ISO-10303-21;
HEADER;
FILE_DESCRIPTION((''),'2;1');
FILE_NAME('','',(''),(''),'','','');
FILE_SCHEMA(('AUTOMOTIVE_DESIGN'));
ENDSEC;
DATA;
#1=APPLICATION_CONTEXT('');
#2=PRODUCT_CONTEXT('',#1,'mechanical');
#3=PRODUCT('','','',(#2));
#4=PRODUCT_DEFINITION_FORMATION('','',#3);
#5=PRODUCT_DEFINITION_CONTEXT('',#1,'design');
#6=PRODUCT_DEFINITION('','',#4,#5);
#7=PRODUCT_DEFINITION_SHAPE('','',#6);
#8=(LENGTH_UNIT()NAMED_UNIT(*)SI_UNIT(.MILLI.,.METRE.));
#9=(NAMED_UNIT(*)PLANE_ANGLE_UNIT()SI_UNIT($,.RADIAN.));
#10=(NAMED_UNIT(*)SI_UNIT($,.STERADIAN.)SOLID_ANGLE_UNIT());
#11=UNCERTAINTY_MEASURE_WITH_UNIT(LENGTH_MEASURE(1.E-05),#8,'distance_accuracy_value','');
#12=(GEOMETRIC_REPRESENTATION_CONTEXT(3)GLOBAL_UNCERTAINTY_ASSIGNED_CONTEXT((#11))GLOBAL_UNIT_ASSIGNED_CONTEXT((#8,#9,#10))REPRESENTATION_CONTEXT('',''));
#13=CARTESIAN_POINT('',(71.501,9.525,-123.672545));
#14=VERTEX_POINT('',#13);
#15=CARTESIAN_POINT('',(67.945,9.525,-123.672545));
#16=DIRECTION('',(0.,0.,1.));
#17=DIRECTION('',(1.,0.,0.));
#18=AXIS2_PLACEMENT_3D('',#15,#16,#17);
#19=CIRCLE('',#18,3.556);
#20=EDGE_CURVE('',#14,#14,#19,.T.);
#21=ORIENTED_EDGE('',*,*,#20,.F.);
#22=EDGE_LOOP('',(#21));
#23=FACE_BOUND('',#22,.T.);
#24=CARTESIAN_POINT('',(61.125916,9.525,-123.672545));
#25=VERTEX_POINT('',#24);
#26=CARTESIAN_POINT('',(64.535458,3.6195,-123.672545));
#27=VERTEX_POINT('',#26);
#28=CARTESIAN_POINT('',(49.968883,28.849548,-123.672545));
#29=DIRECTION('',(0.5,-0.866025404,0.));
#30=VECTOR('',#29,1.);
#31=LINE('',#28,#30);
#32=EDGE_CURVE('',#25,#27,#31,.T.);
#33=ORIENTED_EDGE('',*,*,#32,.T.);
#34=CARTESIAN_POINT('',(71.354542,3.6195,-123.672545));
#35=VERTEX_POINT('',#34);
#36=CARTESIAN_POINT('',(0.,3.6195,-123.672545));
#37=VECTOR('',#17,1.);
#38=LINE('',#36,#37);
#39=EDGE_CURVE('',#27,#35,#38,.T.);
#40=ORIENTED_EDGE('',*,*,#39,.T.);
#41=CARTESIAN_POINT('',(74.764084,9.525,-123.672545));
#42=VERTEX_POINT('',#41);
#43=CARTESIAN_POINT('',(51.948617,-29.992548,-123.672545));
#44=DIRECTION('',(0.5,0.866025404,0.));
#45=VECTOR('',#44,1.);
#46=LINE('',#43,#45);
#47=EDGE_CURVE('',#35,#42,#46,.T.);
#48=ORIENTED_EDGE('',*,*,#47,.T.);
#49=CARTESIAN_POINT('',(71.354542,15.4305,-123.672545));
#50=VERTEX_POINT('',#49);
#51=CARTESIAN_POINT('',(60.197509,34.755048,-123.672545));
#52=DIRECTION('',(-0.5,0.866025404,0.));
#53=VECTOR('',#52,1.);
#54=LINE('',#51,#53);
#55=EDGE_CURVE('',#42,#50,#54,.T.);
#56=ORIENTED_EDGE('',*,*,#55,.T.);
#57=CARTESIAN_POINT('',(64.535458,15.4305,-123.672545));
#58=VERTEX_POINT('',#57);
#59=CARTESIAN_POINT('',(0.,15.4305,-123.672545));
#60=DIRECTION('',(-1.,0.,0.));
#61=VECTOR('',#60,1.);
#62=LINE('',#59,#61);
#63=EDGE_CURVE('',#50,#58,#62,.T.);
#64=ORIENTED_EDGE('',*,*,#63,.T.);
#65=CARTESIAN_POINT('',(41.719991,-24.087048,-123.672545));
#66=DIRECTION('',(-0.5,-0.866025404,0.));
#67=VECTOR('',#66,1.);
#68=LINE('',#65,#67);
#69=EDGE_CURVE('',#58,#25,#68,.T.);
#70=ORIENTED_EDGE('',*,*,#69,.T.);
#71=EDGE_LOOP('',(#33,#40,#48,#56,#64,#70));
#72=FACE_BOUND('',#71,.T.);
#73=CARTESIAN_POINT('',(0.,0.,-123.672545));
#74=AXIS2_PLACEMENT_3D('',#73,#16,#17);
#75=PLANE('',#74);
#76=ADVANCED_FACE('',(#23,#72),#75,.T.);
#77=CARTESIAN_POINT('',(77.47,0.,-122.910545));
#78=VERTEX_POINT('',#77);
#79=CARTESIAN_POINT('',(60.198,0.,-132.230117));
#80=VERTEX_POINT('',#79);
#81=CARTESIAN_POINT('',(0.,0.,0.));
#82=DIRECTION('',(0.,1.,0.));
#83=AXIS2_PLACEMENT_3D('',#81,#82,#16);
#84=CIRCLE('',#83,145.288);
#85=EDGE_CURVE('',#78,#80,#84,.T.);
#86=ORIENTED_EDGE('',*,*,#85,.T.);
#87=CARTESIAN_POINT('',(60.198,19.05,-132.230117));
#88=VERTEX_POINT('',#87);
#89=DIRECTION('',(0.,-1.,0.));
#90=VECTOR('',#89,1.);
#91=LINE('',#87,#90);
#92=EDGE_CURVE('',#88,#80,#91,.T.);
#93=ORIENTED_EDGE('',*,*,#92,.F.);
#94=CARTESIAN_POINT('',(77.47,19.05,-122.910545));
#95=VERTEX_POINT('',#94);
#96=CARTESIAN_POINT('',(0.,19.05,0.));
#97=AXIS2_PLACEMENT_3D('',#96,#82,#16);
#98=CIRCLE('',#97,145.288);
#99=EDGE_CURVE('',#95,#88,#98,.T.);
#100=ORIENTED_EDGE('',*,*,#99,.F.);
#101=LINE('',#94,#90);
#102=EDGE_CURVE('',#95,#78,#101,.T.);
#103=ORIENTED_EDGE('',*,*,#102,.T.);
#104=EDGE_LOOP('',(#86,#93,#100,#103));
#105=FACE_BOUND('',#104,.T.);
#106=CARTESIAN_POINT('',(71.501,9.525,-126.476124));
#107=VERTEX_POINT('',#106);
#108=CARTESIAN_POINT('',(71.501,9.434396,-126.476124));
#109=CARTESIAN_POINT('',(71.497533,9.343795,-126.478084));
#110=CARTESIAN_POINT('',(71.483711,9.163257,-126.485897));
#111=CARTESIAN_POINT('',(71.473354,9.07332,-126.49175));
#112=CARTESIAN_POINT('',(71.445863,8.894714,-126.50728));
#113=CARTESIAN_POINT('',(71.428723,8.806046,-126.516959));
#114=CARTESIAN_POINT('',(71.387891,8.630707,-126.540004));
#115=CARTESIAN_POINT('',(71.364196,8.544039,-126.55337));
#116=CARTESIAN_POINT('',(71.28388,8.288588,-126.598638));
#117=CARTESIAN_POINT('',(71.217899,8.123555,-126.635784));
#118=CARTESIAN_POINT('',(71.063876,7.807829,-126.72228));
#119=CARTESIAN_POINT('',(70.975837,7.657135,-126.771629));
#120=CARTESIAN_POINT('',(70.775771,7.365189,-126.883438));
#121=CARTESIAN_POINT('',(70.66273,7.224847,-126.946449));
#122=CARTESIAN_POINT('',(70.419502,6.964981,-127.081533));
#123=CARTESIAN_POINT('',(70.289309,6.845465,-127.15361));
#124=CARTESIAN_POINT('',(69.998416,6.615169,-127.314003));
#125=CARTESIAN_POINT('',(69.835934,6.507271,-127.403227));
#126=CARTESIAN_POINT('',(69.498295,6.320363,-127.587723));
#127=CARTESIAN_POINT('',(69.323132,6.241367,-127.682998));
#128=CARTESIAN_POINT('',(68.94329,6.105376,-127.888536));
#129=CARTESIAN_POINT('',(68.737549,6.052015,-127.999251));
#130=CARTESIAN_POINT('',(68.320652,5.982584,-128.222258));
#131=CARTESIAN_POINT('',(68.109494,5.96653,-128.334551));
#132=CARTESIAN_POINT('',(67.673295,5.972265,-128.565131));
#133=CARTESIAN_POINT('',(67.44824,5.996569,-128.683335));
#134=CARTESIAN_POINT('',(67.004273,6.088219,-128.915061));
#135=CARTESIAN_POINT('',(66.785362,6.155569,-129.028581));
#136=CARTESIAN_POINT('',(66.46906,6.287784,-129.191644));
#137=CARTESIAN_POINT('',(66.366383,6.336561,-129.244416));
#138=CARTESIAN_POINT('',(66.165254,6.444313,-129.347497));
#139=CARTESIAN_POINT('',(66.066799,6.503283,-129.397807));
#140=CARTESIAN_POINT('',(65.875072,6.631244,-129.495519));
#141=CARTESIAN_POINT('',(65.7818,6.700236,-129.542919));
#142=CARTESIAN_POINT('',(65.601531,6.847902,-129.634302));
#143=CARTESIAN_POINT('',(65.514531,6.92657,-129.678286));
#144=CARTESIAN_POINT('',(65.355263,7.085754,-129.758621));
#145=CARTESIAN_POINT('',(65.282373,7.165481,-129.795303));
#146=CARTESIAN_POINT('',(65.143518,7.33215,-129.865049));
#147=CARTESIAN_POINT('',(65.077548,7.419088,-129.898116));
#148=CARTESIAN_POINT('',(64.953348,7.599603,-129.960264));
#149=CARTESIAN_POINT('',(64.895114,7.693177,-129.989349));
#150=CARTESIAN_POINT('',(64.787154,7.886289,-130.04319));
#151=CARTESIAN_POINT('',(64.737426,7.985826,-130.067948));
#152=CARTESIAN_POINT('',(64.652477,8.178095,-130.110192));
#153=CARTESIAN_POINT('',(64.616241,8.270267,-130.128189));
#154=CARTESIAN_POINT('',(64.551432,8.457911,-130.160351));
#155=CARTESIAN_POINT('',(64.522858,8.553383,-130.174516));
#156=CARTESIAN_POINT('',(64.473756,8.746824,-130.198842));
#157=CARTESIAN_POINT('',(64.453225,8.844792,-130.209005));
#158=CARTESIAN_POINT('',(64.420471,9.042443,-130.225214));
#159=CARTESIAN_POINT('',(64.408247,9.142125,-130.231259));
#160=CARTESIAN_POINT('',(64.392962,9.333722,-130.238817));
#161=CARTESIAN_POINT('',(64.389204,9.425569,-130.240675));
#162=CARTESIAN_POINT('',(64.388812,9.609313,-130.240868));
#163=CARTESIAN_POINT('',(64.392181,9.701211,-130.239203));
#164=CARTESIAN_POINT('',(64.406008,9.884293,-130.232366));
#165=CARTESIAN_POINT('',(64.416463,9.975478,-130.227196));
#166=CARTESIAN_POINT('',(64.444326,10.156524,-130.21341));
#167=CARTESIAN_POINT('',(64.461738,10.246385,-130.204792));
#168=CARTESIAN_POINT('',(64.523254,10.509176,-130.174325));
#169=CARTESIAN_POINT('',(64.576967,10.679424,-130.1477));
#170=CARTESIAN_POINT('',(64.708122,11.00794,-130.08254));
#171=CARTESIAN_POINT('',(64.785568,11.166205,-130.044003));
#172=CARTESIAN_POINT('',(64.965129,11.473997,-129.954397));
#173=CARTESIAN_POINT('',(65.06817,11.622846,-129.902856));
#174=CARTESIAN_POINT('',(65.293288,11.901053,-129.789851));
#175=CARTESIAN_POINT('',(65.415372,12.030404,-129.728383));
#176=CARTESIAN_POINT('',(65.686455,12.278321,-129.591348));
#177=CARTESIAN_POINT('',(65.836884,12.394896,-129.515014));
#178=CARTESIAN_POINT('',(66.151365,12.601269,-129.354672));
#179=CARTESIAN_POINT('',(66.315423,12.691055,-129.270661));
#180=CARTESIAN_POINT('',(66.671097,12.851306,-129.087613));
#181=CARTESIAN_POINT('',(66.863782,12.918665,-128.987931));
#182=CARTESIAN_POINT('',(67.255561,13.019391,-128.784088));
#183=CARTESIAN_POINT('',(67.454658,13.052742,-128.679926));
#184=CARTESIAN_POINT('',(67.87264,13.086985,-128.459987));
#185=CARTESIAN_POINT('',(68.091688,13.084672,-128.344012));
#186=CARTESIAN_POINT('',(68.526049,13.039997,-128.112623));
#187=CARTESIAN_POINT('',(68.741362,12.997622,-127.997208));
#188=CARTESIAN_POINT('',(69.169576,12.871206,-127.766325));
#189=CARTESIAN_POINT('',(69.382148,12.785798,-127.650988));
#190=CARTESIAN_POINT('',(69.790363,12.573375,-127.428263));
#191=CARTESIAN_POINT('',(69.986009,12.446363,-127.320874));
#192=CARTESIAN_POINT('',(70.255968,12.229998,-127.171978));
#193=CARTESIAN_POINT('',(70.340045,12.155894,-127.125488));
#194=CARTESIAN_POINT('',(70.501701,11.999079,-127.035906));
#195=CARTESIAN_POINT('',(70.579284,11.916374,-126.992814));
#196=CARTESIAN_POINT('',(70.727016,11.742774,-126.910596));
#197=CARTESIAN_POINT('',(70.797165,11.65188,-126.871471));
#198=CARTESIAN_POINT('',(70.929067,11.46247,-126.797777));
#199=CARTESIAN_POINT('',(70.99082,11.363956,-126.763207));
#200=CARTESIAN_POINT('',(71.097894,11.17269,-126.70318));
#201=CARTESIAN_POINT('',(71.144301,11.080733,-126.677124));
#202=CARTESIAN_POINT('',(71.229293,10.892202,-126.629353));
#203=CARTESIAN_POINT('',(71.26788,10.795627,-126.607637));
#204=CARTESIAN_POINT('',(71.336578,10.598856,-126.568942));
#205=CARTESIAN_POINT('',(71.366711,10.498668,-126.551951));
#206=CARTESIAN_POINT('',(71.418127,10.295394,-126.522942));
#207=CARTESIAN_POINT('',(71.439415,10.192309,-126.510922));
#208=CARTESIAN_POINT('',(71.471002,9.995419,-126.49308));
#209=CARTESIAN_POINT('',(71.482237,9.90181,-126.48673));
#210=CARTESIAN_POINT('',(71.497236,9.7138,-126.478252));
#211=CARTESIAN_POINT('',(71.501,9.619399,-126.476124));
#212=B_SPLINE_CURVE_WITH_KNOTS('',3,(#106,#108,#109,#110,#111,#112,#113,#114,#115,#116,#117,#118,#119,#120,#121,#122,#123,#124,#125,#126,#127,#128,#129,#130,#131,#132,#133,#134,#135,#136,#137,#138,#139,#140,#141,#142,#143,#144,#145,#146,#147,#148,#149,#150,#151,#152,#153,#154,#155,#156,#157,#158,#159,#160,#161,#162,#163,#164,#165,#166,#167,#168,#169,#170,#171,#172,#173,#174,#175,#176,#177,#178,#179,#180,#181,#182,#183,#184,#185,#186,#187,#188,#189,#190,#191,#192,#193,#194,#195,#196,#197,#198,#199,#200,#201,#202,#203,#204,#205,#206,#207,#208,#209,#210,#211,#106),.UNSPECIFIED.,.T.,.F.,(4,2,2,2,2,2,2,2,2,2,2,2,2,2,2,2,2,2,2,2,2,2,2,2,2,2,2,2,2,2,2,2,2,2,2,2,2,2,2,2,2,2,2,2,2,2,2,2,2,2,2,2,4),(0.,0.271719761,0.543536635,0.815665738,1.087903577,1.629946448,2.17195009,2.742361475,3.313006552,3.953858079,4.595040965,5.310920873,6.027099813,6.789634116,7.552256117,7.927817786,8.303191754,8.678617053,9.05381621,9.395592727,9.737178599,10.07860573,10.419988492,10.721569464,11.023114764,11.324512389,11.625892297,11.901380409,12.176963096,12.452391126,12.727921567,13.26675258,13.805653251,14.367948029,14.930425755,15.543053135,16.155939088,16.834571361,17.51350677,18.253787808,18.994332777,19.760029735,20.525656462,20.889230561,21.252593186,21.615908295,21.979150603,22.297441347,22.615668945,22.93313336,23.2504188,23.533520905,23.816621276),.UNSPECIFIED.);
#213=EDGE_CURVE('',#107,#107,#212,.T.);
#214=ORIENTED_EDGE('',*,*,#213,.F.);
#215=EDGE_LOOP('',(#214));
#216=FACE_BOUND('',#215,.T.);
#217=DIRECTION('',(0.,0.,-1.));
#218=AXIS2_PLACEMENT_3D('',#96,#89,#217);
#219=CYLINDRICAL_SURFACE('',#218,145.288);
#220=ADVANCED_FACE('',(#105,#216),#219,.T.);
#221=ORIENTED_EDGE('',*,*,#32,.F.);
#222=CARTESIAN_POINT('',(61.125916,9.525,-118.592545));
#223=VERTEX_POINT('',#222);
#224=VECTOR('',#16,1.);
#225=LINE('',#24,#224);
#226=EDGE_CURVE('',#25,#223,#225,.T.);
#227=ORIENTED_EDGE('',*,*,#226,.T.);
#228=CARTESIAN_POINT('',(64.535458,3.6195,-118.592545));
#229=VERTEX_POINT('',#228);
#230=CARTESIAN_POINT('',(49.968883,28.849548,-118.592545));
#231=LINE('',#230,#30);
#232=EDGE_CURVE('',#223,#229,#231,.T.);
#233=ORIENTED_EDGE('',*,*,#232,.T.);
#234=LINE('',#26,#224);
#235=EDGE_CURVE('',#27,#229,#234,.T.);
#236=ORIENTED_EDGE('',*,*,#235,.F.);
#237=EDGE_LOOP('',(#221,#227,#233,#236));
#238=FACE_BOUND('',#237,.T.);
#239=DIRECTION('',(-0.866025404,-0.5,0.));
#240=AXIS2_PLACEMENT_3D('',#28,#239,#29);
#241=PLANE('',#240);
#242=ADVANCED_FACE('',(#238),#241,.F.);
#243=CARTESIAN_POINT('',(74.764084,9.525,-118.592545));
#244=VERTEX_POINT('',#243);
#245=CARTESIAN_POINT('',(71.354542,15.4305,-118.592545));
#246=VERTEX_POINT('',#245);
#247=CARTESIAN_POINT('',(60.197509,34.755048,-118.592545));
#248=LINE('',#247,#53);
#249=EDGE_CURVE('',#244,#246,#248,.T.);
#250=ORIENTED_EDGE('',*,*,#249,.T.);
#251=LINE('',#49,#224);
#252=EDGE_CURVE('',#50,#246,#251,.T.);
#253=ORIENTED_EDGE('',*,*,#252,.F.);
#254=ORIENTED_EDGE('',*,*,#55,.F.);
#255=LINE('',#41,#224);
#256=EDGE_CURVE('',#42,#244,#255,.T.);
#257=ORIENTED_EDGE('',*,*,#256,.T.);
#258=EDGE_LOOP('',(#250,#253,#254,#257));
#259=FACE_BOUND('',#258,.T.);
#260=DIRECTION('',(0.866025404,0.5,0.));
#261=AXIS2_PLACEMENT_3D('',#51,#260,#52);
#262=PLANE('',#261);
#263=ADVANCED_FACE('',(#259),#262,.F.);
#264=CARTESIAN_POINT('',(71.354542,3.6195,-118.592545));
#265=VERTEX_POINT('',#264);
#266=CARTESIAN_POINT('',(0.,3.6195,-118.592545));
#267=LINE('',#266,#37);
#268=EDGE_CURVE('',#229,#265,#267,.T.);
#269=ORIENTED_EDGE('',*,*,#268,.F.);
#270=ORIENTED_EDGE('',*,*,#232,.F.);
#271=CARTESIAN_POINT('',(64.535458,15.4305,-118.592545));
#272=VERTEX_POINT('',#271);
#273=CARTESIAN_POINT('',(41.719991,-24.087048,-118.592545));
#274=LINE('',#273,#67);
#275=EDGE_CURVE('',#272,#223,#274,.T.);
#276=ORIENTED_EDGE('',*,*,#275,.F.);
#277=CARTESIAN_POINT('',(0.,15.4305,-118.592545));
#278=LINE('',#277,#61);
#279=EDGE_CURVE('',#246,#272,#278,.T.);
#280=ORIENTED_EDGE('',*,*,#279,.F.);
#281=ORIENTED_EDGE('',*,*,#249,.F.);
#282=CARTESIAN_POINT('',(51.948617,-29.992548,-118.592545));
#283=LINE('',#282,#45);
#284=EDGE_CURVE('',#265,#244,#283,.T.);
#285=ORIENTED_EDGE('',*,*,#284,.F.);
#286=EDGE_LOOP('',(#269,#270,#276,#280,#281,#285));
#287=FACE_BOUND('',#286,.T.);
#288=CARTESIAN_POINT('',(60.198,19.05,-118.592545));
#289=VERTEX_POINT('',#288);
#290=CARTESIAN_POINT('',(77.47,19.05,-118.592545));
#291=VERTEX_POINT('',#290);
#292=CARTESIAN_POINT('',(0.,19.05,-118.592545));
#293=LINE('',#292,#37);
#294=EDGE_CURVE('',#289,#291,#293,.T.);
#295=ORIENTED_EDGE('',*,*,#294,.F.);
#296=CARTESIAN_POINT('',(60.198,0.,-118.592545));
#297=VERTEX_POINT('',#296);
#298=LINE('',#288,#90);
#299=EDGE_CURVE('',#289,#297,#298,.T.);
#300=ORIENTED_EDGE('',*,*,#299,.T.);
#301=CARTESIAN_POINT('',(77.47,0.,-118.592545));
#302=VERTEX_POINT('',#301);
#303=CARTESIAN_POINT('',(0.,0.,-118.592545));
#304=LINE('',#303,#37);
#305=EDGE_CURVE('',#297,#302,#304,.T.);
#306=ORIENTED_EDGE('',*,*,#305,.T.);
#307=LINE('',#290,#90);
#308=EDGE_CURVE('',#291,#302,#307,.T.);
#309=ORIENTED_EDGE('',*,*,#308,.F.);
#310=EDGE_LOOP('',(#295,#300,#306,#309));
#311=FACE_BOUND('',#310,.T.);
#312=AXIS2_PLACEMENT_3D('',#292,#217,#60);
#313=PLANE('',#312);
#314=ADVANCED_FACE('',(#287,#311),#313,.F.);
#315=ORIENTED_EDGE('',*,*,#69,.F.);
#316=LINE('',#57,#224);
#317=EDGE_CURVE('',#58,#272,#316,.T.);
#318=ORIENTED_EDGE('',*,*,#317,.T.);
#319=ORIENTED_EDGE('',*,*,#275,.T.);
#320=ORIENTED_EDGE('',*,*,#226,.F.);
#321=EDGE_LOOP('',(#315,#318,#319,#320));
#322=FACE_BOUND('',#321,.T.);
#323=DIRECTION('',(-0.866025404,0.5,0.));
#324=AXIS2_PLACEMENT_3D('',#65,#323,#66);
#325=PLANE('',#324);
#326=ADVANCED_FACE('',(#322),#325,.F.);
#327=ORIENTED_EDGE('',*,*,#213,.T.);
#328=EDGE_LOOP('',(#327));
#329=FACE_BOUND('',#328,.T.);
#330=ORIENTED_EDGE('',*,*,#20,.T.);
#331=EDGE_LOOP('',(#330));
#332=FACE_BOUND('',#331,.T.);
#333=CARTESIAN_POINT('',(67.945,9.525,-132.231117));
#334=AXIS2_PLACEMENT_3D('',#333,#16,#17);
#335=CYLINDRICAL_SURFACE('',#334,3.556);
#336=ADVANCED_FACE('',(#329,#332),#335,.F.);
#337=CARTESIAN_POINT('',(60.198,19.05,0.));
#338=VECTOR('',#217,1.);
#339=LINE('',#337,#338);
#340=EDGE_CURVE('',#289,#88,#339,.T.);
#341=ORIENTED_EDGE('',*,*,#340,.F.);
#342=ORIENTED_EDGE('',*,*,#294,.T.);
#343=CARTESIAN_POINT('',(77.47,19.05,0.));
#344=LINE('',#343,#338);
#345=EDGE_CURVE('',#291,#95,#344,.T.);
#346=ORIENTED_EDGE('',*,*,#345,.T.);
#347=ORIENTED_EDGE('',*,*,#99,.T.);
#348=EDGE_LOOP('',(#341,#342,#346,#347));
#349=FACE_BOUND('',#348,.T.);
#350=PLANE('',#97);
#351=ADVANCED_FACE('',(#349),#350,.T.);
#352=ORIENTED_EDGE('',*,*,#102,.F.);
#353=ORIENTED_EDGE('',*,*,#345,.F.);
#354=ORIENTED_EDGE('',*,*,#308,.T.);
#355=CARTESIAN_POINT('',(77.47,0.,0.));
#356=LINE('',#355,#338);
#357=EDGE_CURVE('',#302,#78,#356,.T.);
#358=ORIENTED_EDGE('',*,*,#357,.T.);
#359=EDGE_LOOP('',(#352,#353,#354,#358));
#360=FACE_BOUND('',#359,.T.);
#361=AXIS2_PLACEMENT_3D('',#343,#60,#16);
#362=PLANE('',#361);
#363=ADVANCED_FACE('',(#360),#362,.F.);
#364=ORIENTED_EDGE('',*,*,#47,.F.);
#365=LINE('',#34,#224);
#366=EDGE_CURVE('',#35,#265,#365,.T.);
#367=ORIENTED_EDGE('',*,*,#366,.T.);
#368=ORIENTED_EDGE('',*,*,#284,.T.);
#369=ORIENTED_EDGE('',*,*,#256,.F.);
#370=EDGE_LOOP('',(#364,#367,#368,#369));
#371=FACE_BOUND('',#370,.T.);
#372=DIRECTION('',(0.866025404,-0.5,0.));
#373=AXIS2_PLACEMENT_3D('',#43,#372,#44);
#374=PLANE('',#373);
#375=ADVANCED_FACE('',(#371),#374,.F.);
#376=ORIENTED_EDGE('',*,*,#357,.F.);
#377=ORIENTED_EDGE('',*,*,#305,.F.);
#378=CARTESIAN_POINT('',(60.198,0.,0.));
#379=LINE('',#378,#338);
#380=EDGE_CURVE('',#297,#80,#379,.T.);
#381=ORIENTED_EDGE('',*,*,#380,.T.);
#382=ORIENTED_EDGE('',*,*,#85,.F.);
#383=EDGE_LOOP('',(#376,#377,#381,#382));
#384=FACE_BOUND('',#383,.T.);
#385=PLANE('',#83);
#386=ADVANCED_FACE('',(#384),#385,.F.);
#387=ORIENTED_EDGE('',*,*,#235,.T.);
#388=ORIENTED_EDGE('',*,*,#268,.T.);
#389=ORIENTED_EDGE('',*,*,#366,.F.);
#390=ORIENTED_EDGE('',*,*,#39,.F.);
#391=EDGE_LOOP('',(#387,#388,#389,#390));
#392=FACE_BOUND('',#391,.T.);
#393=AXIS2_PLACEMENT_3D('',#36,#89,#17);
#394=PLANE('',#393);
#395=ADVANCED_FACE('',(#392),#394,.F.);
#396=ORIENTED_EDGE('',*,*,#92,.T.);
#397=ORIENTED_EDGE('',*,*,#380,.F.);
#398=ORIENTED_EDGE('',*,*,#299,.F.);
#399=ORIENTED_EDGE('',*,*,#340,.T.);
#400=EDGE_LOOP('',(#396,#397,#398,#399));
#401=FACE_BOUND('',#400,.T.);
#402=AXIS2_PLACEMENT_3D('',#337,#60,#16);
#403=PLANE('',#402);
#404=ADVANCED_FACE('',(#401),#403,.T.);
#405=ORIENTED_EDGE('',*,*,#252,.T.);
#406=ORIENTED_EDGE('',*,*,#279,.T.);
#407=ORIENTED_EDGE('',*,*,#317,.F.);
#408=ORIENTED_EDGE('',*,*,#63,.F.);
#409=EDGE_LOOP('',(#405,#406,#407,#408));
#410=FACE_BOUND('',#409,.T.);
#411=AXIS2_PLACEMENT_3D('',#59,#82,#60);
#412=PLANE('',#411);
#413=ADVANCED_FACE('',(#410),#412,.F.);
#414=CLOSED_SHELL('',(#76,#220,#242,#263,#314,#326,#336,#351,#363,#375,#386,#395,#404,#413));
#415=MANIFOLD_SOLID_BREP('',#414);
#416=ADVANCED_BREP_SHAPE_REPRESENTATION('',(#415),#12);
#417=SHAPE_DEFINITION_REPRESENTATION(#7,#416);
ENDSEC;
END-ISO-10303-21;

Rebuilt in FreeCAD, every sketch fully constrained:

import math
import FreeCAD as App
import Part
import Sketcher
from FreeCAD import Vector
Q = App.Units.Quantity

doc = App.newDocument("Part")
body = doc.addObject("PartDesign::Body", "Body")

sketch1 = body.newObject("Sketcher::SketchObject", "Sketch")
sketch1.AttachmentSupport = (doc.getObject("XZ_Plane"), [""])
sketch1.MapMode = "FlatFace"
sketch1.addGeometry([
    Part.ArcOfCircle(Part.Circle(Vector(0, 0, 0), Vector(0, 0, 1), 145.3), math.radians(-65.52), math.radians(-57.78)),
    Part.LineSegment(Vector(60.2, -132.2, 0), Vector(60.2, -118.6, 0)),
    Part.LineSegment(Vector(60.2, -118.6, 0), Vector(77.5, -118.6, 0)),
    Part.LineSegment(Vector(77.5, -118.6, 0), Vector(77.5, -122.9, 0)),
], False)
sketch1.addConstraint([
    Sketcher.Constraint("Coincident", 0, 1, 1, 1),
    Sketcher.Constraint("Coincident", 1, 2, 2, 1),
    Sketcher.Constraint("Coincident", 2, 2, 3, 1),
    Sketcher.Constraint("Coincident", 3, 2, 0, 2),
    Sketcher.Constraint("Vertical", 1),
    Sketcher.Constraint("Horizontal", 2),
    Sketcher.Constraint("Vertical", 3),
    Sketcher.Constraint("Coincident", 0, 3, -1, 1),
    Sketcher.Constraint("Radius", 0, Q("5.72 in")),
    Sketcher.Constraint("DistanceX", 2, 1, 2, 2, Q("0.68 in")),
    Sketcher.Constraint("DistanceY", 3, 2, 3, 1, Q("0.17 in")),
    Sketcher.Constraint("DistanceX", -1, 1, 0, 1, Q("2.37 in")),
])
pad1 = body.newObject("PartDesign::Pad", "Pad")
pad1.Profile = sketch1
pad1.Length = Q("0.75 in")
pad1.Reversed = True

sketch2 = body.newObject("Sketcher::SketchObject", "Sketch001")
sketch2.AttachmentSupport = (doc.getObject("XY_Plane"), [""])
sketch2.MapMode = "FlatFace"
sketch2.AttachmentOffset = App.Placement(Vector(0, 0, -118.592545), App.Rotation())
sketch2.addGeometry([
    Part.LineSegment(Vector(64.5, 3.6, 0), Vector(71.4, 3.6, 0)),
    Part.LineSegment(Vector(71.4, 3.6, 0), Vector(74.8, 9.5, 0)),
    Part.LineSegment(Vector(74.8, 9.5, 0), Vector(71.4, 15.4, 0)),
    Part.LineSegment(Vector(71.4, 15.4, 0), Vector(64.5, 15.4, 0)),
    Part.LineSegment(Vector(64.5, 15.4, 0), Vector(61.1, 9.5, 0)),
    Part.LineSegment(Vector(61.1, 9.5, 0), Vector(64.5, 3.6, 0)),
    Part.Circle(Vector(67.9, 9.5, 0), Vector(0, 0, 1), 3.6),
], False)
sketch2.addConstraint([
    Sketcher.Constraint("Coincident", 0, 2, 1, 1),
    Sketcher.Constraint("Coincident", 1, 2, 2, 1),
    Sketcher.Constraint("Coincident", 2, 2, 3, 1),
    Sketcher.Constraint("Coincident", 3, 2, 4, 1),
    Sketcher.Constraint("Coincident", 4, 2, 5, 1),
    Sketcher.Constraint("Coincident", 5, 2, 0, 1),
    Sketcher.Constraint("Horizontal", 0),
    Sketcher.Constraint("Horizontal", 3),
    Sketcher.Constraint("Parallel", 1, 4),
    Sketcher.Constraint("Parallel", 2, 5),
    Sketcher.Constraint("Horizontal", 6, 3, 1, 2),
    Sketcher.Constraint("Horizontal", 1, 2, 4, 2),
    Sketcher.Constraint("Vertical", 0, 2, 2, 2),
    Sketcher.Constraint("Vertical", 3, 2, 5, 2),
    Sketcher.Constraint("Diameter", 6, Q("0.28 in")),
    Sketcher.Constraint("Angle", 1, Q("60 deg")),
    Sketcher.Constraint("DistanceX", -1, 1, 6, 3, Q("2.675 in")),
    Sketcher.Constraint("DistanceY", -1, 1, 6, 3, Q("0.375 in")),
    Sketcher.Constraint("DistanceY", 0, 2, 2, 2, Q("0.465 in")),
    Sketcher.Constraint("DistanceX", 0, 1, 0, 2, 6.819084),
    Sketcher.Constraint("DistanceX", -1, 1, 0, 2, 71.354542),
])
pocket1 = body.newObject("PartDesign::Pocket", "Pocket")
pocket1.Profile = sketch2
pocket1.Length = Q("0.2 in")

sketch3 = body.newObject("Sketcher::SketchObject", "Sketch002")
sketch3.AttachmentSupport = (doc.getObject("XY_Plane"), [""])
sketch3.MapMode = "FlatFace"
sketch3.AttachmentOffset = App.Placement(Vector(0, 0, -118.592545), App.Rotation())
sketch3.addGeometry(Part.Circle(Vector(67.9, 9.5, 0), Vector(0, 0, 1), 3.6), False)
sketch3.addConstraint([
    Sketcher.Constraint("Diameter", 0, Q("0.28 in")),
    Sketcher.Constraint("DistanceX", -1, 1, 0, 3, Q("2.675 in")),
    Sketcher.Constraint("DistanceY", -1, 1, 0, 3, Q("0.375 in")),
])
pocket2 = body.newObject("PartDesign::Pocket", "Pocket001")
pocket2.Profile = sketch3
pocket2.Type = "UpToFirst"

doc.recompute()
